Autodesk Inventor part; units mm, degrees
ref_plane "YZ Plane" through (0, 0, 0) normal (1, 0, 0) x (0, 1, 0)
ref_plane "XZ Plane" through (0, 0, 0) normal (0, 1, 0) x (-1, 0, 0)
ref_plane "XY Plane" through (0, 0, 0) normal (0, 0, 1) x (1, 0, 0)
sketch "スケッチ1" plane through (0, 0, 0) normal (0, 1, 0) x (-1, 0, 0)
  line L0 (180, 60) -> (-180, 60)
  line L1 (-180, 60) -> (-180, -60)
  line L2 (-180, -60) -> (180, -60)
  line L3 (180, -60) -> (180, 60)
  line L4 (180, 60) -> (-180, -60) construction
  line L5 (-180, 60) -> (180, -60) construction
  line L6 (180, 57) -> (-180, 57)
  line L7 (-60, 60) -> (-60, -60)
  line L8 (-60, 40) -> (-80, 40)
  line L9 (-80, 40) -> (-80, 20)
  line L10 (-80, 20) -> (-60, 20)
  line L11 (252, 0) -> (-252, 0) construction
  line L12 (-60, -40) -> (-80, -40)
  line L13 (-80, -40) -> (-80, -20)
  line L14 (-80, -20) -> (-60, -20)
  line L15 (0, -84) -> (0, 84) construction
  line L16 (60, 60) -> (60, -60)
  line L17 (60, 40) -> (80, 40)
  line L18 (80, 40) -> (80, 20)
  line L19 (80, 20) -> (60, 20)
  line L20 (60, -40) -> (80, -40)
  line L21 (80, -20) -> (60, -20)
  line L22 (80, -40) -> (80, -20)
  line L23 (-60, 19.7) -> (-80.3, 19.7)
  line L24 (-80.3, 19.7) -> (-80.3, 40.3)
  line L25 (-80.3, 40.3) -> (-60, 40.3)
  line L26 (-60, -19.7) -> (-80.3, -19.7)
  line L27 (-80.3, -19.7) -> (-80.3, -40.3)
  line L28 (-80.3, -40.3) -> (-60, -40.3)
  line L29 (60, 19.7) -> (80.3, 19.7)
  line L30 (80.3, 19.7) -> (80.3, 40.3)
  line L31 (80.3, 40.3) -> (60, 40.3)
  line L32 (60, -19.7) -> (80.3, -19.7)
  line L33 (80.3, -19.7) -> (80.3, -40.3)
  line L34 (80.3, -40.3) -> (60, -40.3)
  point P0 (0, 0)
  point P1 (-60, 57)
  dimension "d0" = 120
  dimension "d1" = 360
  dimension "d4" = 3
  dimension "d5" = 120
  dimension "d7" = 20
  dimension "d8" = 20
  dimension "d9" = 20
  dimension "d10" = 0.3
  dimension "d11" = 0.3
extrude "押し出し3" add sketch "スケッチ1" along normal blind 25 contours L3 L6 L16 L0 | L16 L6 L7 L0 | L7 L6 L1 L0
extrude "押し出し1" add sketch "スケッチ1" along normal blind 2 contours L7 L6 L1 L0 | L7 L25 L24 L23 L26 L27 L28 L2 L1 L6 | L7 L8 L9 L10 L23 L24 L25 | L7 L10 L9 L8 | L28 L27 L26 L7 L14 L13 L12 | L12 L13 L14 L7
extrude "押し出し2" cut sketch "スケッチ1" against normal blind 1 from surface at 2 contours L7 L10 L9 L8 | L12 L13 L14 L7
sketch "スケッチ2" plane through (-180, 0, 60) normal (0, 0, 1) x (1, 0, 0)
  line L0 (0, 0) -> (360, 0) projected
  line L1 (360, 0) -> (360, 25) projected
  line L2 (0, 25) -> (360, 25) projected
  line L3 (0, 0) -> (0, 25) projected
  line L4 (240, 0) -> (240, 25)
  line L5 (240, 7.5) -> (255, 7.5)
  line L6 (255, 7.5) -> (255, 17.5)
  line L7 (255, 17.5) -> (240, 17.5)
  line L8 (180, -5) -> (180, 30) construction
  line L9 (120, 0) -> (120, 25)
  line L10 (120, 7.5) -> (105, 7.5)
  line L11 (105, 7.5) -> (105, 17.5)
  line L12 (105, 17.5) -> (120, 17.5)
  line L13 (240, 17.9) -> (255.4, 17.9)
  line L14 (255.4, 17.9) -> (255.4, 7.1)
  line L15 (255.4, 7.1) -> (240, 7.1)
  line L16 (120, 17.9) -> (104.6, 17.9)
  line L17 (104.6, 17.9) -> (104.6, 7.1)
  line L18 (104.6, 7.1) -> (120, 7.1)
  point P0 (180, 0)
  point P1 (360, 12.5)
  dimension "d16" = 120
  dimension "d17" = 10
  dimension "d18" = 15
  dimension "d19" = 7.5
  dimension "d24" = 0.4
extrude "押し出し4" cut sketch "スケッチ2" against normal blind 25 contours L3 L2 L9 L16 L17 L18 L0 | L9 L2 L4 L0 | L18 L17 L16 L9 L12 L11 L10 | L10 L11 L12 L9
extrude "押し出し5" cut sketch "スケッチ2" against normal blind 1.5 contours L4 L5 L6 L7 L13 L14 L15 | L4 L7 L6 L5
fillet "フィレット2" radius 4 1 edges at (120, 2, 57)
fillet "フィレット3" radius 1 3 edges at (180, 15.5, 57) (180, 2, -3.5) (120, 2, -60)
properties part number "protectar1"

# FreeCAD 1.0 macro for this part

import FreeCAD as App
import Part
import Sketcher

V = App.Vector
Q = App.Units.Quantity


def edges_at(feature, points):
    """Names of the edges that pass closest to the given points."""
    edges = feature.Shape.Edges
    near = lambda p: min(range(len(edges)), key=lambda i: edges[i].distToShape(Part.Vertex(*p))[0])
    return sorted({f"Edge{near(p) + 1}" for p in points})

doc = App.newDocument("Part")
params = doc.addObject("Spreadsheet::Sheet", "Params")
for row, (alias, value) in enumerate([
    ("sketch1_width", "360 mm"),
    ("sketch1_height", "3 mm"),
    ("pad1_length", "25 mm"),
    ("sketch2_width", "120 mm"),
    ("pad2_length", "2 mm"),
    ("sketch3_width", "20 mm"),
    ("pocket1_length", "1 mm"),
    ("sketch4_width", "240 mm"),
    ("sketch4_height", "25 mm"),
    ("pocket2_length", "25 mm"),
    ("sketch5_width", "15.4 mm"),
    ("sketch5_height", "10.8 mm"),
    ("pocket3_length", "1.5 mm"),
    ("fillet_radius", "4 mm"),
    ("fillet2_radius", "1 mm"),
], start=1):
    params.set(f"A{row}", alias)
    params.set(f"B{row}", "=" + value)
    params.setAlias(f"B{row}", alias)

body = doc.addObject("PartDesign::Body", "Body")

# Sketch on XZ plane
sketch1 = body.newObject("Sketcher::SketchObject", "Sketch")
sketch1.AttachmentSupport = (doc.getObject("XZ_Plane"), [""])
sketch1.MapMode = "FlatFace"
sketch1.addGeometry([
    Part.LineSegment(V(-180, 57, 0), V(-180, 60, 0)),
    Part.LineSegment(V(-180, 60, 0), V(180, 60, 0)),
    Part.LineSegment(V(180, 60, 0), V(180, 57, 0)),
    Part.LineSegment(V(180, 57, 0), V(-180, 57, 0)),
], False)
sketch1.addConstraint([
    Sketcher.Constraint("Coincident", 0, 2, 1, 1),
    Sketcher.Constraint("Coincident", 1, 2, 2, 1),
    Sketcher.Constraint("Coincident", 2, 2, 3, 1),
    Sketcher.Constraint("Coincident", 3, 2, 0, 1),
    Sketcher.Constraint("Vertical", 0),
    Sketcher.Constraint("Horizontal", 1),
    Sketcher.Constraint("Vertical", 2),
    Sketcher.Constraint("Horizontal", 3),
    Sketcher.Constraint("DistanceX", 1, 1, 1, 2, Q("360 mm")),
    Sketcher.Constraint("DistanceY", 0, 1, 0, 2, Q("3 mm")),
    Sketcher.Constraint("DistanceX", 0, 2, -1, 1, Q("180 mm")),
    Sketcher.Constraint("DistanceY", -1, 1, 0, 2, Q("60 mm")),
])
sketch1.setExpression("Constraints[8]", "Params.sketch1_width")
sketch1.setExpression("Constraints[9]", "Params.sketch1_height")
pad1 = body.newObject("PartDesign::Pad", "Pad")
pad1.Profile = sketch1
pad1.setExpression("Length", "Params.pad1_length")
pad1.Reversed = True

# Sketch on XZ plane
sketch2 = body.newObject("Sketcher::SketchObject", "Sketch001")
sketch2.AttachmentSupport = (doc.getObject("XZ_Plane"), [""])
sketch2.MapMode = "FlatFace"
sketch2.addGeometry([
    Part.LineSegment(V(60, 60, 0), V(180, 60, 0)),
    Part.LineSegment(V(180, 60, 0), V(180, -60, 0)),
    Part.LineSegment(V(180, -60, 0), V(60, -60, 0)),
    Part.LineSegment(V(60, -60, 0), V(60, 60, 0)),
], False)
sketch2.addConstraint([
    Sketcher.Constraint("Coincident", 0, 2, 1, 1),
    Sketcher.Constraint("Coincident", 1, 2, 2, 1),
    Sketcher.Constraint("Coincident", 2, 2, 3, 1),
    Sketcher.Constraint("Coincident", 3, 2, 0, 1),
    Sketcher.Constraint("Horizontal", 0),
    Sketcher.Constraint("Vertical", 1),
    Sketcher.Constraint("Horizontal", 2),
    Sketcher.Constraint("Vertical", 3),
    Sketcher.Constraint("Equal", 2, 1),
    Sketcher.Constraint("DistanceX", 0, 1, 0, 2, Q("120 mm")),
    Sketcher.Constraint("DistanceX", -1, 1, 0, 2, Q("180 mm")),
    Sketcher.Constraint("DistanceY", -1, 1, 0, 2, Q("60 mm")),
])
sketch2.setExpression("Constraints[9]", "Params.sketch2_width")
pad2 = body.newObject("PartDesign::Pad", "Pad001")
pad2.Profile = sketch2
pad2.setExpression("Length", "Params.pad2_length")
pad2.Reversed = True

# Sketch on XZ plane
sketch3 = body.newObject("Sketcher::SketchObject", "Sketch002")
sketch3.AttachmentSupport = (doc.getObject("XZ_Plane"), [""])
sketch3.MapMode = "FlatFace"
sketch3.AttachmentOffset = App.Placement(V(0, 0, -2), App.Rotation())
sketch3.addGeometry([
    Part.LineSegment(V(60, 20, 0), V(60, 40, 0)),  # 0
    Part.LineSegment(V(60, 40, 0), V(80, 40, 0)),  # 1
    Part.LineSegment(V(80, 40, 0), V(80, 20, 0)),  # 2
    Part.LineSegment(V(80, 20, 0), V(60, 20, 0)),  # 3
    Part.LineSegment(V(80, -40, 0), V(60, -40, 0)),  # 4
    Part.LineSegment(V(60, -40, 0), V(60, -20, 0)),  # 5
    Part.LineSegment(V(60, -20, 0), V(80, -20, 0)),  # 6
    Part.LineSegment(V(80, -20, 0), V(80, -40, 0)),  # 7
], False)
sketch3.addConstraint([
    Sketcher.Constraint("Coincident", 0, 2, 1, 1),
    Sketcher.Constraint("Coincident", 1, 2, 2, 1),
    Sketcher.Constraint("Coincident", 2, 2, 3, 1),
    Sketcher.Constraint("Coincident", 3, 2, 0, 1),
    Sketcher.Constraint("Coincident", 4, 2, 5, 1),
    Sketcher.Constraint("Coincident", 5, 2, 6, 1),
    Sketcher.Constraint("Coincident", 6, 2, 7, 1),
    Sketcher.Constraint("Coincident", 7, 2, 4, 1),
    Sketcher.Constraint("Vertical", 0),
    Sketcher.Constraint("Horizontal", 1),
    Sketcher.Constraint("Vertical", 2),
    Sketcher.Constraint("Horizontal", 3),
    Sketcher.Constraint("Horizontal", 4),
    Sketcher.Constraint("Vertical", 5),
    Sketcher.Constraint("Horizontal", 6),
    Sketcher.Constraint("Vertical", 7),
    Sketcher.Constraint("Symmetric", 0, 2, 4, 2, -1),
    Sketcher.Constraint("Symmetric", 2, 2, 6, 2, -1),
    Sketcher.Constraint("Equal", 6, 0),
    Sketcher.Constraint("DistanceX", 1, 1, 1, 2, Q("20 mm")),
    Sketcher.Constraint("DistanceY", -1, 1, 2, 2, Q("20 mm")),
    Sketcher.Constraint("DistanceX", -1, 1, 0, 2, Q("60 mm")),
])
sketch3.setExpression("Constraints[19]", "Params.sketch3_width")
pocket1 = body.newObject("PartDesign::Pocket", "Pocket")
pocket1.Profile = sketch3
pocket1.setExpression("Length", "Params.pocket1_length")
pocket1.Reversed = True

# Sketch on XY plane
sketch4 = body.newObject("Sketcher::SketchObject", "Sketch003")
sketch4.AttachmentSupport = (doc.getObject("XY_Plane"), [""])
sketch4.MapMode = "FlatFace"
sketch4.AttachmentOffset = App.Placement(V(0, 0, 60), App.Rotation())
sketch4.addGeometry([
    Part.LineSegment(V(-180, 25, 0), V(-180, 0, 0)),
    Part.LineSegment(V(-180, 0, 0), V(60, 0, 0)),
    Part.LineSegment(V(60, 0, 0), V(60, 25, 0)),
    Part.LineSegment(V(60, 25, 0), V(-180, 25, 0)),
], False)
sketch4.addConstraint([
    Sketcher.Constraint("Coincident", 0, 2, 1, 1),
    Sketcher.Constraint("Coincident", 1, 2, 2, 1),
    Sketcher.Constraint("Coincident", 2, 2, 3, 1),
    Sketcher.Constraint("Coincident", 3, 2, 0, 1),
    Sketcher.Constraint("Vertical", 0),
    Sketcher.Constraint("Horizontal", 1),
    Sketcher.Constraint("Vertical", 2),
    Sketcher.Constraint("Horizontal", 3),
    Sketcher.Constraint("PointOnObject", 0, 2, -1),
    Sketcher.Constraint("DistanceX", 1, 1, 1, 2, Q("240 mm")),
    Sketcher.Constraint("DistanceY", 0, 2, 0, 1, Q("25 mm")),
    Sketcher.Constraint("DistanceX", 0, 2, -1, 1, Q("180 mm")),
])
sketch4.setExpression("Constraints[9]", "Params.sketch4_width")
sketch4.setExpression("Constraints[10]", "Params.sketch4_height")
pocket2 = body.newObject("PartDesign::Pocket", "Pocket001")
pocket2.Profile = sketch4
pocket2.setExpression("Length", "Params.pocket2_length")

# Sketch on XY plane
sketch5 = body.newObject("Sketcher::SketchObject", "Sketch004")
sketch5.AttachmentSupport = (doc.getObject("XY_Plane"), [""])
sketch5.MapMode = "FlatFace"
sketch5.AttachmentOffset = App.Placement(V(0, 0, 60), App.Rotation())
sketch5.addGeometry([
    Part.LineSegment(V(60, 7.1, 0), V(75.4, 7.1, 0)),
    Part.LineSegment(V(75.4, 7.1, 0), V(75.4, 17.9, 0)),
    Part.LineSegment(V(75.4, 17.9, 0), V(60, 17.9, 0)),
    Part.LineSegment(V(60, 17.9, 0), V(60, 7.1, 0)),
], False)
sketch5.addConstraint([
    Sketcher.Constraint("Coincident", 0, 2, 1, 1),
    Sketcher.Constraint("Coincident", 1, 2, 2, 1),
    Sketcher.Constraint("Coincident", 2, 2, 3, 1),
    Sketcher.Constraint("Coincident", 3, 2, 0, 1),
    Sketcher.Constraint("Horizontal", 0),
    Sketcher.Constraint("Vertical", 1),
    Sketcher.Constraint("Horizontal", 2),
    Sketcher.Constraint("Vertical", 3),
    Sketcher.Constraint("DistanceX", 0, 1, 0, 2, Q("15.4 mm")),
    Sketcher.Constraint("DistanceY", 1, 1, 1, 2, Q("10.8 mm")),
    Sketcher.Constraint("DistanceX", -1, 1, 2, 2, Q("60 mm")),
    Sketcher.Constraint("DistanceY", -1, 1, 0, 2, Q("7.1 mm")),
])
sketch5.setExpression("Constraints[8]", "Params.sketch5_width")
sketch5.setExpression("Constraints[9]", "Params.sketch5_height")
pocket3 = body.newObject("PartDesign::Pocket", "Pocket002")
pocket3.Profile = sketch5
pocket3.setExpression("Length", "Params.pocket3_length")
doc.recompute()

fillet = body.newObject("PartDesign::Fillet", "Fillet")
fillet.Base = (pocket3, edges_at(pocket3, [(120, 2, 57)]))
fillet.setExpression("Radius", "Params.fillet_radius")
doc.recompute()

fillet2 = body.newObject("PartDesign::Fillet", "Fillet001")
fillet2.Base = (fillet, edges_at(fillet, [(180, 15.5, 57), (180, 2, -3.5), (120, 2, -60)]))
fillet2.setExpression("Radius", "Params.fillet2_radius")

doc.recompute()
